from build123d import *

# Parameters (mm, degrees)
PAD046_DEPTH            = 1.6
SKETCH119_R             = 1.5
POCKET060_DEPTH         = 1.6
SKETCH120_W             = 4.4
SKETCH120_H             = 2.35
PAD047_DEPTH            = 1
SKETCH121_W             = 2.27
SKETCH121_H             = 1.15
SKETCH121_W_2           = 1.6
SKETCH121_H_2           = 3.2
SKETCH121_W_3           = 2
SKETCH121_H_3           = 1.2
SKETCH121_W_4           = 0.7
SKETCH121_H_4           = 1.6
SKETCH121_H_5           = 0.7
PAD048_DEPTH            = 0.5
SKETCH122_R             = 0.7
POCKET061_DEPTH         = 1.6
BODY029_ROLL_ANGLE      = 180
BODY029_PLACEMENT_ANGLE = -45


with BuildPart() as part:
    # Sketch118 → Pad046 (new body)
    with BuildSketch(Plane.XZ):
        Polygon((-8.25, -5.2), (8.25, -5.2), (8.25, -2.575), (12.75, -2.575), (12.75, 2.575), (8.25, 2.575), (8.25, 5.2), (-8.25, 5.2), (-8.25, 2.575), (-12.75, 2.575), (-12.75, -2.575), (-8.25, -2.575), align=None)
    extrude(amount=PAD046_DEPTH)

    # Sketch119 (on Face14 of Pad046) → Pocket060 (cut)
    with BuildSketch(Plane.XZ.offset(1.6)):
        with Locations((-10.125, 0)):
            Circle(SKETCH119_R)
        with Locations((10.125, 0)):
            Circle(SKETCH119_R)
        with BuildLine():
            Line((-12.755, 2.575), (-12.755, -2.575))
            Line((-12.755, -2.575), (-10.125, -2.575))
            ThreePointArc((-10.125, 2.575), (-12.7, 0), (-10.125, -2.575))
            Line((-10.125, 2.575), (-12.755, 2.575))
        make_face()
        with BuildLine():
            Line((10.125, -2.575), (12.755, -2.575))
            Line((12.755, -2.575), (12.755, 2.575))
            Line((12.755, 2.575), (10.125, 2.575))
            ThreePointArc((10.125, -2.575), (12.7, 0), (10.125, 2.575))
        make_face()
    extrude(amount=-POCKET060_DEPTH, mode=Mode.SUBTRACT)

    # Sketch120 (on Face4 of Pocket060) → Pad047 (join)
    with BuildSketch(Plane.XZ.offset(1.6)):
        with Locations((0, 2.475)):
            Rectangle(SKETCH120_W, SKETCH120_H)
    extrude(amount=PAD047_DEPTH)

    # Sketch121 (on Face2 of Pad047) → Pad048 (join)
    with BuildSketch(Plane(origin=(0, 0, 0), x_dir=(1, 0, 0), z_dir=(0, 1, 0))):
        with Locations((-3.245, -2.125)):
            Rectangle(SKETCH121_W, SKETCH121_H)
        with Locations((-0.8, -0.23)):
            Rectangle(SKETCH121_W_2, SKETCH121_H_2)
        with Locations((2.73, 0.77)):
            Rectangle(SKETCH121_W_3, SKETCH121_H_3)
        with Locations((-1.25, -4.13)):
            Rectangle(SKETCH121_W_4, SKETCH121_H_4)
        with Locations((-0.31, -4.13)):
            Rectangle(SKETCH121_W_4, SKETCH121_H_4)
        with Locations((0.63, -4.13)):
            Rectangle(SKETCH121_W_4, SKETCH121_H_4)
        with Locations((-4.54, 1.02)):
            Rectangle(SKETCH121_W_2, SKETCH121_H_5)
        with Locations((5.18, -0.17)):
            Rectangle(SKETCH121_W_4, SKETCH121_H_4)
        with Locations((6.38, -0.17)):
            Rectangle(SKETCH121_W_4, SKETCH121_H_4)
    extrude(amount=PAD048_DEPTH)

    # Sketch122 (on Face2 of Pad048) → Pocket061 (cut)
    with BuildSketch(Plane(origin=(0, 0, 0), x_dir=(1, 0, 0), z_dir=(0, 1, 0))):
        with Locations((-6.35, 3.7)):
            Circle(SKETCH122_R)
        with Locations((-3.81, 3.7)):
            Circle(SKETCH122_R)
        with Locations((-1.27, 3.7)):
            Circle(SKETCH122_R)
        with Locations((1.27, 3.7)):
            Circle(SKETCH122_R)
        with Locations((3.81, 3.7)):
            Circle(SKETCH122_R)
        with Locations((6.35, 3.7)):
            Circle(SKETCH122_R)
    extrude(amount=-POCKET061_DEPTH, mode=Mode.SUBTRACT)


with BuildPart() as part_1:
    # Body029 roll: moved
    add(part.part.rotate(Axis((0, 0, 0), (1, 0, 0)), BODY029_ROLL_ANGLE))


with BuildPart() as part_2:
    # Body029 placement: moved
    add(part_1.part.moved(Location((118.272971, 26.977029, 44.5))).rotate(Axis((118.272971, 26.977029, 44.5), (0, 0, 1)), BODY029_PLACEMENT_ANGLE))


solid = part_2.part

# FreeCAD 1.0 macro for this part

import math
import FreeCAD as App
import Part
import Sketcher
from FreeCAD import Vector
Q = App.Units.Quantity

doc = App.newDocument("Part")
body = doc.addObject("PartDesign::Body", "Body")

sketch1 = body.newObject("Sketcher::SketchObject", "Sketch")
sketch1.AttachmentSupport = (doc.getObject("XZ_Plane"), [""])
sketch1.MapMode = "FlatFace"
sketch1.addGeometry([
    Part.LineSegment(Vector(-8.2, -5.2, 0), Vector(8.2, -5.2, 0)),
    Part.LineSegment(Vector(8.2, -5.2, 0), Vector(8.2, -2.6, 0)),
    Part.LineSegment(Vector(8.2, -2.6, 0), Vector(12.8, -2.6, 0)),
    Part.LineSegment(Vector(12.8, -2.6, 0), Vector(12.8, 2.6, 0)),
    Part.LineSegment(Vector(12.8, 2.6, 0), Vector(8.2, 2.6, 0)),
    Part.LineSegment(Vector(8.2, 2.6, 0), Vector(8.2, 5.2, 0)),
    Part.LineSegment(Vector(8.2, 5.2, 0), Vector(-8.2, 5.2, 0)),
    Part.LineSegment(Vector(-8.2, 5.2, 0), Vector(-8.2, 2.6, 0)),
    Part.LineSegment(Vector(-8.2, 2.6, 0), Vector(-12.8, 2.6, 0)),
    Part.LineSegment(Vector(-12.8, 2.6, 0), Vector(-12.8, -2.6, 0)),
    Part.LineSegment(Vector(-12.8, -2.6, 0), Vector(-8.2, -2.6, 0)),
    Part.LineSegment(Vector(-8.2, -2.6, 0), Vector(-8.2, -5.2, 0)),
], False)
sketch1.addConstraint([
    Sketcher.Constraint("Coincident", 0, 2, 1, 1),
    Sketcher.Constraint("Coincident", 1, 2, 2, 1),
    Sketcher.Constraint("Coincident", 2, 2, 3, 1),
    Sketcher.Constraint("Coincident", 3, 2, 4, 1),
    Sketcher.Constraint("Coincident", 4, 2, 5, 1),
    Sketcher.Constraint("Coincident", 5, 2, 6, 1),
    Sketcher.Constraint("Coincident", 6, 2, 7, 1),
    Sketcher.Constraint("Coincident", 7, 2, 8, 1),
    Sketcher.Constraint("Coincident", 8, 2, 9, 1),
    Sketcher.Constraint("Coincident", 9, 2, 10, 1),
    Sketcher.Constraint("Coincident", 10, 2, 11, 1),
    Sketcher.Constraint("Coincident", 11, 2, 0, 1),
    Sketcher.Constraint("Horizontal", 0),
    Sketcher.Constraint("Vertical", 1),
    Sketcher.Constraint("Horizontal", 2),
    Sketcher.Constraint("Vertical", 3),
    Sketcher.Constraint("Horizontal", 4),
    Sketcher.Constraint("Vertical", 5),
    Sketcher.Constraint("Horizontal", 6),
    Sketcher.Constraint("Vertical", 7),
    Sketcher.Constraint("Horizontal", 8),
    Sketcher.Constraint("Vertical", 9),
    Sketcher.Constraint("Horizontal", 10),
    Sketcher.Constraint("Vertical", 11),
    Sketcher.Constraint("Symmetric", 0, 2, 6, 2, -1, 1),
    Sketcher.Constraint("Symmetric", 2, 2, 8, 2, -1, 1),
    Sketcher.Constraint("Symmetric", 4, 2, 10, 2, -1, 1),
    Sketcher.Constraint("Symmetric", 4, 2, 7, 2, -2),
    Sketcher.Constraint("DistanceX", 0, 1, 0, 2, Q("16.5 mm")),
    Sketcher.Constraint("DistanceX", 2, 1, 2, 2, Q("4.5 mm")),
    Sketcher.Constraint("DistanceY", 3, 1, 3, 2, Q("5.15 mm")),
    Sketcher.Constraint("DistanceY", 0, 2, -1, 1, Q("5.2 mm")),
])
pad1 = body.newObject("PartDesign::Pad", "Pad")
pad1.Profile = sketch1
pad1.Length = 1.6

sketch2 = body.newObject("Sketcher::SketchObject", "Sketch001")
sketch2.AttachmentSupport = (doc.getObject("XZ_Plane"), [""])
sketch2.MapMode = "FlatFace"
sketch2.AttachmentOffset = App.Placement(Vector(0, 0, 1.6), App.Rotation())
sketch2.addGeometry([
    Part.Circle(Vector(-10.1, 0, 0), Vector(0, 0, 1), 1.5),
    Part.Circle(Vector(10.1, 0, 0), Vector(0, 0, 1), 1.5),
    Part.LineSegment(Vector(-12.8, 2.6, 0), Vector(-12.8, -2.6, 0)),
    Part.LineSegment(Vector(-12.8, -2.6, 0), Vector(-10.1, -2.6, 0)),
    Part.ArcOfCircle(Part.Circle(Vector(-10.1, 0, 0), Vector(0, 0, 1), 2.6), math.radians(90), math.radians(270)),
    Part.LineSegment(Vector(-10.1, 2.6, 0), Vector(-12.8, 2.6, 0)),
    Part.LineSegment(Vector(10.1, -2.6, 0), Vector(12.8, -2.6, 0)),
    Part.LineSegment(Vector(12.8, -2.6, 0), Vector(12.8, 2.6, 0)),
    Part.LineSegment(Vector(12.8, 2.6, 0), Vector(10.1, 2.6, 0)),
    Part.ArcOfCircle(Part.Circle(Vector(10.1, 0, 0), Vector(0, 0, 1), 2.6), math.radians(-90), math.radians(90)),
], False)
sketch2.addConstraint([
    Sketcher.Constraint("Coincident", 2, 2, 3, 1),
    Sketcher.Constraint("Tangent", 3, 2, 4, 2),
    Sketcher.Constraint("Tangent", 4, 1, 5, 1),
    Sketcher.Constraint("Coincident", 5, 2, 2, 1),
    Sketcher.Constraint("Coincident", 6, 2, 7, 1),
    Sketcher.Constraint("Coincident", 7, 2, 8, 1),
    Sketcher.Constraint("Tangent", 8, 2, 9, 2),
    Sketcher.Constraint("Tangent", 9, 1, 6, 1),
    Sketcher.Constraint("Vertical", 2),
    Sketcher.Constraint("Horizontal", 3),
    Sketcher.Constraint("Horizontal", 5),
    Sketcher.Constraint("Horizontal", 6),
    Sketcher.Constraint("Vertical", 7),
    Sketcher.Constraint("Horizontal", 8),
    Sketcher.Constraint("Coincident", 4, 3, 0, 3),
    Sketcher.Constraint("Coincident", 9, 3, 1, 3),
    Sketcher.Constraint("Equal", 0, 1),
    Sketcher.Constraint("Equal", 4, 9),
    Sketcher.Constraint("Symmetric", 0, 3, 1, 3, -1, 1),
    Sketcher.Constraint("Symmetric", 2, 2, 6, 2, -2),
    Sketcher.Constraint("Diameter", 0, Q("3 mm")),
    Sketcher.Constraint("Radius", 4, Q("2.575 mm")),
    Sketcher.Constraint("DistanceX", 3, 1, 3, 2, Q("2.63 mm")),
    Sketcher.Constraint("DistanceX", 0, 3, 1, 3, Q("20.25 mm")),
])
pocket1 = body.newObject("PartDesign::Pocket", "Pocket")
pocket1.Profile = sketch2
pocket1.Length = 1.6

sketch3 = body.newObject("Sketcher::SketchObject", "Sketch002")
sketch3.AttachmentSupport = (doc.getObject("XZ_Plane"), [""])
sketch3.MapMode = "FlatFace"
sketch3.AttachmentOffset = App.Placement(Vector(0, 0, 1.6), App.Rotation())
sketch3.addGeometry([
    Part.LineSegment(Vector(-2.2, 3.6, 0), Vector(-2.2, 1.3, 0)),
    Part.LineSegment(Vector(-2.2, 1.3, 0), Vector(2.2, 1.3, 0)),
    Part.LineSegment(Vector(2.2, 1.3, 0), Vector(2.2, 3.6, 0)),
    Part.LineSegment(Vector(2.2, 3.6, 0), Vector(-2.2, 3.6, 0)),
], False)
sketch3.addConstraint([
    Sketcher.Constraint("Coincident", 0, 2, 1, 1),
    Sketcher.Constraint("Coincident", 1, 2, 2, 1),
    Sketcher.Constraint("Coincident", 2, 2, 3, 1),
    Sketcher.Constraint("Coincident", 3, 2, 0, 1),
    Sketcher.Constraint("Vertical", 0),
    Sketcher.Constraint("Horizontal", 1),
    Sketcher.Constraint("Vertical", 2),
    Sketcher.Constraint("Horizontal", 3),
    Sketcher.Constraint("DistanceX", 1, 1, 1, 2, Q("4.4 mm")),
    Sketcher.Constraint("DistanceY", 0, 2, 0, 1, Q("2.35 mm")),
    Sketcher.Constraint("DistanceX", 0, 2, -1, 1, Q("2.2 mm")),
    Sketcher.Constraint("DistanceY", -1, 1, 0, 2, Q("1.3 mm")),
])
pad2 = body.newObject("PartDesign::Pad", "Pad001")
pad2.Profile = sketch3
pad2.Length = 1

sketch4 = body.newObject("Sketcher::SketchObject", "Sketch003")
sketch4.AttachmentSupport = (doc.getObject("XZ_Plane"), [""])
sketch4.MapMode = "FlatFace"
sketch4.addGeometry([
    Part.LineSegment(Vector(-4.4, 1.6, 0), Vector(-4.4, 2.7, 0)),
    Part.LineSegment(Vector(-4.4, 2.7, 0), Vector(-2.1, 2.7, 0)),
    Part.LineSegment(Vector(-2.1, 2.7, 0), Vector(-2.1, 1.6, 0)),
    Part.LineSegment(Vector(-2.1, 1.6, 0), Vector(-4.4, 1.6, 0)),
    Part.LineSegment(Vector(-1.6, -1.4, 0), Vector(-1.6, 1.8, 0)),
    Part.LineSegment(Vector(-1.6, 1.8, 0), Vector(0, 1.8, 0)),
    Part.LineSegment(Vector(0, 1.8, 0), Vector(0, -1.4, 0)),
    Part.LineSegment(Vector(0, -1.4, 0), Vector(-1.6, -1.4, 0)),
    Part.LineSegment(Vector(1.7, -1.4, 0), Vector(1.7, -0.2, 0)),
    Part.LineSegment(Vector(1.7, -0.2, 0), Vector(3.7, -0.2, 0)),
    Part.LineSegment(Vector(3.7, -0.2, 0), Vector(3.7, -1.4, 0)),
    Part.LineSegment(Vector(3.7, -1.4, 0), Vector(1.7, -1.4, 0)),
    Part.LineSegment(Vector(-1.6, 3.3, 0), Vector(-1.6, 4.9, 0)),
    Part.LineSegment(Vector(-1.6, 4.9, 0), Vector(-0.9, 4.9, 0)),
    Part.LineSegment(Vector(-0.9, 4.9, 0), Vector(-0.9, 3.3, 0)),
    Part.LineSegment(Vector(-0.9, 3.3, 0), Vector(-1.6, 3.3, 0)),
    Part.LineSegment(Vector(-0.7, 3.3, 0), Vector(-0.7, 4.9, 0)),
    Part.LineSegment(Vector(-0.7, 4.9, 0), Vector(0, 4.9, 0)),
    Part.LineSegment(Vector(0, 4.9, 0), Vector(0, 3.3, 0)),
    Part.LineSegment(Vector(0, 3.3, 0), Vector(-0.7, 3.3, 0)),
    Part.LineSegment(Vector(0.3, 3.3, 0), Vector(0.3, 4.9, 0)),
    Part.LineSegment(Vector(0.3, 4.9, 0), Vector(1, 4.9, 0)),
    Part.LineSegment(Vector(1, 4.9, 0), Vector(1, 3.3, 0)),
    Part.LineSegment(Vector(1, 3.3, 0), Vector(0.3, 3.3, 0)),
    Part.LineSegment(Vector(-5.3, -1.4, 0), Vector(-5.3, -0.7, 0)),
    Part.LineSegment(Vector(-5.3, -0.7, 0), Vector(-3.7, -0.7, 0)),
    Part.LineSegment(Vector(-3.7, -0.7, 0), Vector(-3.7, -1.4, 0)),
    Part.LineSegment(Vector(-3.7, -1.4, 0), Vector(-5.3, -1.4, 0)),
    Part.LineSegment(Vector(4.8, -0.6, 0), Vector(4.8, 1, 0)),
    Part.LineSegment(Vector(4.8, 1, 0), Vector(5.5, 1, 0)),
    Part.LineSegment(Vector(5.5, 1, 0), Vector(5.5, -0.6, 0)),
    Part.LineSegment(Vector(5.5, -0.6, 0), Vector(4.8, -0.6, 0)),
    Part.LineSegment(Vector(6, -0.6, 0), Vector(6, 1, 0)),
    Part.LineSegment(Vector(6, 1, 0), Vector(6.7, 1, 0)),
    Part.LineSegment(Vector(6.7, 1, 0), Vector(6.7, -0.6, 0)),
    Part.LineSegment(Vector(6.7, -0.6, 0), Vector(6, -0.6, 0)),
], False)
sketch4.addConstraint([
    Sketcher.Constraint("Coincident", 0, 2, 1, 1),
    Sketcher.Constraint("Coincident", 1, 2, 2, 1),
    Sketcher.Constraint("Coincident", 2, 2, 3, 1),
    Sketcher.Constraint("Coincident", 3, 2, 0, 1),
    Sketcher.Constraint("Coincident", 4, 2, 5, 1),
    Sketcher.Constraint("Coincident", 5, 2, 6, 1),
    Sketcher.Constraint("Coincident", 6, 2, 7, 1),
    Sketcher.Constraint("Coincident", 7, 2, 4, 1),
    Sketcher.Constraint("Coincident", 8, 2, 9, 1),
    Sketcher.Constraint("Coincident", 9, 2, 10, 1),
    Sketcher.Constraint("Coincident", 10, 2, 11, 1),
    Sketcher.Constraint("Coincident", 11, 2, 8, 1),
    Sketcher.Constraint("Coincident", 12, 2, 13, 1),
    Sketcher.Constraint("Coincident", 13, 2, 14, 1),
    Sketcher.Constraint("Coincident", 14, 2, 15, 1),
    Sketcher.Constraint("Coincident", 15, 2, 12, 1),
    Sketcher.Constraint("Coincident", 16, 2, 17, 1),
    Sketcher.Constraint("Coincident", 17, 2, 18, 1),
    Sketcher.Constraint("Coincident", 18, 2, 19, 1),
    Sketcher.Constraint("Coincident", 19, 2, 16, 1),
    Sketcher.Constraint("Coincident", 20, 2, 21, 1),
    Sketcher.Constraint("Coincident", 21, 2, 22, 1),
    Sketcher.Constraint("Coincident", 22, 2, 23, 1),
    Sketcher.Constraint("Coincident", 23, 2, 20, 1),
    Sketcher.Constraint("Coincident", 24, 2, 25, 1),
    Sketcher.Constraint("Coincident", 25, 2, 26, 1),
    Sketcher.Constraint("Coincident", 26, 2, 27, 1),
    Sketcher.Constraint("Coincident", 27, 2, 24, 1),
    Sketcher.Constraint("Coincident", 28, 2, 29, 1),
    Sketcher.Constraint("Coincident", 29, 2, 30, 1),
    Sketcher.Constraint("Coincident", 30, 2, 31, 1),
    Sketcher.Constraint("Coincident", 31, 2, 28, 1),
    Sketcher.Constraint("Coincident", 32, 2, 33, 1),
    Sketcher.Constraint("Coincident", 33, 2, 34, 1),
    Sketcher.Constraint("Coincident", 34, 2, 35, 1),
    Sketcher.Constraint("Coincident", 35, 2, 32, 1),
    Sketcher.Constraint("Vertical", 0),
    Sketcher.Constraint("Horizontal", 1),
    Sketcher.Constraint("Vertical", 2),
    Sketcher.Constraint("Horizontal", 3),
    Sketcher.Constraint("Vertical", 4),
    Sketcher.Constraint("Horizontal", 5),
    Sketcher.Constraint("Vertical", 6),
    Sketcher.Constraint("Horizontal", 7),
    Sketcher.Constraint("Vertical", 8),
    Sketcher.Constraint("Horizontal", 9),
    Sketcher.Constraint("Vertical", 10),
    Sketcher.Constraint("Horizontal", 11),
    Sketcher.Constraint("Vertical", 12),
    Sketcher.Constraint("Horizontal", 13),
    Sketcher.Constraint("Vertical", 14),
    Sketcher.Constraint("Horizontal", 15),
    Sketcher.Constraint("Vertical", 16),
    Sketcher.Constraint("Horizontal", 17),
    Sketcher.Constraint("Vertical", 18),
    Sketcher.Constraint("Horizontal", 19),
    Sketcher.Constraint("Vertical", 20),
    Sketcher.Constraint("Horizontal", 21),
    Sketcher.Constraint("Vertical", 22),
    Sketcher.Constraint("Horizontal", 23),
    Sketcher.Constraint("Vertical", 24),
    Sketcher.Constraint("Horizontal", 25),
    Sketcher.Constraint("Vertical", 26),
    Sketcher.Constraint("Horizontal", 27),
    Sketcher.Constraint("Vertical", 28),
    Sketcher.Constraint("Horizontal", 29),
    Sketcher.Constraint("Vertical", 30),
    Sketcher.Constraint("Horizontal", 31),
    Sketcher.Constraint("Vertical", 32),
    Sketcher.Constraint("Horizontal", 33),
    Sketcher.Constraint("Vertical", 34),
    Sketcher.Constraint("Horizontal", 35),
    Sketcher.Constraint("PointOnObject", 5, 2, -2),
    Sketcher.Constraint("Horizontal", 7, 2, 10, 2),
    Sketcher.Constraint("Horizontal", 13, 2, 16, 2),
    Sketcher.Constraint("Horizontal", 15, 2, 18, 2),
    Sketcher.Constraint("Horizontal", 17, 2, 20, 2),
    Sketcher.Constraint("Horizontal", 19, 2, 22, 2),
    Sketcher.Constraint("Horizontal", 11, 2, 26, 2),
    Sketcher.Constraint("Horizontal", 29, 2, 32, 2),
    Sketcher.Constraint("Horizontal", 31, 2, 34, 2),
    Sketcher.Constraint("Vertical", 7, 2, 12, 2),
    Sketcher.Constraint("Equal", 15, 17),
    Sketcher.Constraint("Equal", 19, 21),
    Sketcher.Constraint("Equal", 7, 25),
    Sketcher.Constraint("Equal", 23, 29),
    Sketcher.Constraint("Equal", 31, 33),
    Sketcher.Constraint("Equal", 27, 12),
    Sketcher.Constraint("Equal", 35, 24),
    Sketcher.Constraint("Equal", 22, 28),
    Sketcher.Constraint("DistanceX", 9, 1, 9, 2, Q("2 mm")),
    Sketcher.Constraint("DistanceX", 5, 1, 5, 2, Q("1.6 mm")),
    Sketcher.Constraint("DistanceX", 13, 1, 13, 2, Q("0.7 mm")),
    Sketcher.Constraint("DistanceY", 4, 1, 4, 2, Q("3.2 mm")),
    Sketcher.Constraint("DistanceY", 8, 1, 8, 2, Q("1.2 mm")),
    Sketcher.Constraint("DistanceX", 1, 1, 1, 2, Q("2.27 mm")),
    Sketcher.Constraint("DistanceY", 0, 1, 0, 2, Q("1.15 mm")),
    Sketcher.Constraint("DistanceY", -1, 1, 0, 2, Q("2.7 mm")),
    Sketcher.Constraint("DistanceY", 4, 2, 12, 2, Q("3.1 mm")),
    Sketcher.Constraint("DistanceX", 9, 2, 28, 2, Q("1.1 mm")),
    Sketcher.Constraint("DistanceX", 29, 2, 32, 2, Q("0.5 mm")),
    Sketcher.Constraint("DistanceX", 0, 2, -1, 1, Q("4.38 mm")),
    Sketcher.Constraint("DistanceY", -1, 1, 4, 2, Q("1.83 mm")),
    Sketcher.Constraint("DistanceX", -1, 1, 8, 2, Q("1.73 mm")),
    Sketcher.Constraint("DistanceX", 16, 2, -1, 1, Q("0.66 mm")),
    Sketcher.Constraint("DistanceX", -1, 1, 20, 2, Q("0.28 mm")),
    Sketcher.Constraint("DistanceX", 24, 2, -1, 1, Q("5.34 mm")),
    Sketcher.Constraint("DistanceY", -1, 1, 28, 2, Q("0.97 mm")),
])
pad3 = body.newObject("PartDesign::Pad", "Pad002")
pad3.Profile = sketch4
pad3.Length = 0.5
pad3.Reversed = True

sketch5 = body.newObject("Sketcher::SketchObject", "Sketch004")
sketch5.AttachmentSupport = (doc.getObject("XZ_Plane"), [""])
sketch5.MapMode = "FlatFace"
sketch5.addGeometry([
    Part.Circle(Vector(-6.3, -3.7, 0), Vector(0, 0, 1), 0.7),
    Part.Circle(Vector(-3.8, -3.7, 0), Vector(0, 0, 1), 0.7),
    Part.Circle(Vector(-1.3, -3.7, 0), Vector(0, 0, 1), 0.7),
    Part.Circle(Vector(1.3, -3.7, 0), Vector(0, 0, 1), 0.7),
    Part.Circle(Vector(3.8, -3.7, 0), Vector(0, 0, 1), 0.7),
    Part.Circle(Vector(6.3, -3.7, 0), Vector(0, 0, 1), 0.7),
], False)
sketch5.addConstraint([
    Sketcher.Constraint("Equal", 0, 1),
    Sketcher.Constraint("Equal", 1, 2),
    Sketcher.Constraint("Equal", 2, 3),
    Sketcher.Constraint("Equal", 3, 4),
    Sketcher.Constraint("Equal", 4, 5),
    Sketcher.Constraint("Symmetric", 2, 3, 3, 3, -2),
    Sketcher.Constraint("Symmetric", 1, 3, 4, 3, -2),
    Sketcher.Constraint("Symmetric", 0, 3, 5, 3, -2),
    Sketcher.Constraint("Horizontal", 0, 3, 1, 3),
    Sketcher.Constraint("Horizontal", 1, 3, 2, 3),
    Sketcher.Constraint("Diameter", 0, Q("1.4 mm")),
    Sketcher.Constraint("DistanceY", 0, 3, -1, 1, Q("3.7 mm")),
    Sketcher.Constraint("DistanceX", 0, 3, 5, 3, Q("12.7 mm")),
    Sketcher.Constraint("DistanceX", 1, 3, -1, 1, Q("3.81 mm")),
    Sketcher.Constraint("DistanceX", 2, 3, -1, 1, Q("1.27 mm")),
])
pocket2 = body.newObject("PartDesign::Pocket", "Pocket001")
pocket2.Profile = sketch5
pocket2.Length = 1.6
pocket2.Reversed = True
body2 = doc.addObject("PartDesign::Body", "Body001")
doc.recompute()

body.Placement = App.Placement(Vector(0, 0, 0), App.Rotation(Vector(1, 0, 0), 180))
boolean = body2.newObject("PartDesign::Boolean", "Boolean")
boolean.Type = "Fuse"
boolean.addObjects([body])
body3 = doc.addObject("PartDesign::Body", "Body002")
doc.recompute()

body2.Placement = App.Placement(Vector(118.272971, 26.977029, 44.5), App.Rotation(Vector(0, 0, 1), 315))
boolean2 = body3.newObject("PartDesign::Boolean", "Boolean001")
boolean2.Type = "Fuse"
boolean2.addObjects([body2])

doc.recompute()
